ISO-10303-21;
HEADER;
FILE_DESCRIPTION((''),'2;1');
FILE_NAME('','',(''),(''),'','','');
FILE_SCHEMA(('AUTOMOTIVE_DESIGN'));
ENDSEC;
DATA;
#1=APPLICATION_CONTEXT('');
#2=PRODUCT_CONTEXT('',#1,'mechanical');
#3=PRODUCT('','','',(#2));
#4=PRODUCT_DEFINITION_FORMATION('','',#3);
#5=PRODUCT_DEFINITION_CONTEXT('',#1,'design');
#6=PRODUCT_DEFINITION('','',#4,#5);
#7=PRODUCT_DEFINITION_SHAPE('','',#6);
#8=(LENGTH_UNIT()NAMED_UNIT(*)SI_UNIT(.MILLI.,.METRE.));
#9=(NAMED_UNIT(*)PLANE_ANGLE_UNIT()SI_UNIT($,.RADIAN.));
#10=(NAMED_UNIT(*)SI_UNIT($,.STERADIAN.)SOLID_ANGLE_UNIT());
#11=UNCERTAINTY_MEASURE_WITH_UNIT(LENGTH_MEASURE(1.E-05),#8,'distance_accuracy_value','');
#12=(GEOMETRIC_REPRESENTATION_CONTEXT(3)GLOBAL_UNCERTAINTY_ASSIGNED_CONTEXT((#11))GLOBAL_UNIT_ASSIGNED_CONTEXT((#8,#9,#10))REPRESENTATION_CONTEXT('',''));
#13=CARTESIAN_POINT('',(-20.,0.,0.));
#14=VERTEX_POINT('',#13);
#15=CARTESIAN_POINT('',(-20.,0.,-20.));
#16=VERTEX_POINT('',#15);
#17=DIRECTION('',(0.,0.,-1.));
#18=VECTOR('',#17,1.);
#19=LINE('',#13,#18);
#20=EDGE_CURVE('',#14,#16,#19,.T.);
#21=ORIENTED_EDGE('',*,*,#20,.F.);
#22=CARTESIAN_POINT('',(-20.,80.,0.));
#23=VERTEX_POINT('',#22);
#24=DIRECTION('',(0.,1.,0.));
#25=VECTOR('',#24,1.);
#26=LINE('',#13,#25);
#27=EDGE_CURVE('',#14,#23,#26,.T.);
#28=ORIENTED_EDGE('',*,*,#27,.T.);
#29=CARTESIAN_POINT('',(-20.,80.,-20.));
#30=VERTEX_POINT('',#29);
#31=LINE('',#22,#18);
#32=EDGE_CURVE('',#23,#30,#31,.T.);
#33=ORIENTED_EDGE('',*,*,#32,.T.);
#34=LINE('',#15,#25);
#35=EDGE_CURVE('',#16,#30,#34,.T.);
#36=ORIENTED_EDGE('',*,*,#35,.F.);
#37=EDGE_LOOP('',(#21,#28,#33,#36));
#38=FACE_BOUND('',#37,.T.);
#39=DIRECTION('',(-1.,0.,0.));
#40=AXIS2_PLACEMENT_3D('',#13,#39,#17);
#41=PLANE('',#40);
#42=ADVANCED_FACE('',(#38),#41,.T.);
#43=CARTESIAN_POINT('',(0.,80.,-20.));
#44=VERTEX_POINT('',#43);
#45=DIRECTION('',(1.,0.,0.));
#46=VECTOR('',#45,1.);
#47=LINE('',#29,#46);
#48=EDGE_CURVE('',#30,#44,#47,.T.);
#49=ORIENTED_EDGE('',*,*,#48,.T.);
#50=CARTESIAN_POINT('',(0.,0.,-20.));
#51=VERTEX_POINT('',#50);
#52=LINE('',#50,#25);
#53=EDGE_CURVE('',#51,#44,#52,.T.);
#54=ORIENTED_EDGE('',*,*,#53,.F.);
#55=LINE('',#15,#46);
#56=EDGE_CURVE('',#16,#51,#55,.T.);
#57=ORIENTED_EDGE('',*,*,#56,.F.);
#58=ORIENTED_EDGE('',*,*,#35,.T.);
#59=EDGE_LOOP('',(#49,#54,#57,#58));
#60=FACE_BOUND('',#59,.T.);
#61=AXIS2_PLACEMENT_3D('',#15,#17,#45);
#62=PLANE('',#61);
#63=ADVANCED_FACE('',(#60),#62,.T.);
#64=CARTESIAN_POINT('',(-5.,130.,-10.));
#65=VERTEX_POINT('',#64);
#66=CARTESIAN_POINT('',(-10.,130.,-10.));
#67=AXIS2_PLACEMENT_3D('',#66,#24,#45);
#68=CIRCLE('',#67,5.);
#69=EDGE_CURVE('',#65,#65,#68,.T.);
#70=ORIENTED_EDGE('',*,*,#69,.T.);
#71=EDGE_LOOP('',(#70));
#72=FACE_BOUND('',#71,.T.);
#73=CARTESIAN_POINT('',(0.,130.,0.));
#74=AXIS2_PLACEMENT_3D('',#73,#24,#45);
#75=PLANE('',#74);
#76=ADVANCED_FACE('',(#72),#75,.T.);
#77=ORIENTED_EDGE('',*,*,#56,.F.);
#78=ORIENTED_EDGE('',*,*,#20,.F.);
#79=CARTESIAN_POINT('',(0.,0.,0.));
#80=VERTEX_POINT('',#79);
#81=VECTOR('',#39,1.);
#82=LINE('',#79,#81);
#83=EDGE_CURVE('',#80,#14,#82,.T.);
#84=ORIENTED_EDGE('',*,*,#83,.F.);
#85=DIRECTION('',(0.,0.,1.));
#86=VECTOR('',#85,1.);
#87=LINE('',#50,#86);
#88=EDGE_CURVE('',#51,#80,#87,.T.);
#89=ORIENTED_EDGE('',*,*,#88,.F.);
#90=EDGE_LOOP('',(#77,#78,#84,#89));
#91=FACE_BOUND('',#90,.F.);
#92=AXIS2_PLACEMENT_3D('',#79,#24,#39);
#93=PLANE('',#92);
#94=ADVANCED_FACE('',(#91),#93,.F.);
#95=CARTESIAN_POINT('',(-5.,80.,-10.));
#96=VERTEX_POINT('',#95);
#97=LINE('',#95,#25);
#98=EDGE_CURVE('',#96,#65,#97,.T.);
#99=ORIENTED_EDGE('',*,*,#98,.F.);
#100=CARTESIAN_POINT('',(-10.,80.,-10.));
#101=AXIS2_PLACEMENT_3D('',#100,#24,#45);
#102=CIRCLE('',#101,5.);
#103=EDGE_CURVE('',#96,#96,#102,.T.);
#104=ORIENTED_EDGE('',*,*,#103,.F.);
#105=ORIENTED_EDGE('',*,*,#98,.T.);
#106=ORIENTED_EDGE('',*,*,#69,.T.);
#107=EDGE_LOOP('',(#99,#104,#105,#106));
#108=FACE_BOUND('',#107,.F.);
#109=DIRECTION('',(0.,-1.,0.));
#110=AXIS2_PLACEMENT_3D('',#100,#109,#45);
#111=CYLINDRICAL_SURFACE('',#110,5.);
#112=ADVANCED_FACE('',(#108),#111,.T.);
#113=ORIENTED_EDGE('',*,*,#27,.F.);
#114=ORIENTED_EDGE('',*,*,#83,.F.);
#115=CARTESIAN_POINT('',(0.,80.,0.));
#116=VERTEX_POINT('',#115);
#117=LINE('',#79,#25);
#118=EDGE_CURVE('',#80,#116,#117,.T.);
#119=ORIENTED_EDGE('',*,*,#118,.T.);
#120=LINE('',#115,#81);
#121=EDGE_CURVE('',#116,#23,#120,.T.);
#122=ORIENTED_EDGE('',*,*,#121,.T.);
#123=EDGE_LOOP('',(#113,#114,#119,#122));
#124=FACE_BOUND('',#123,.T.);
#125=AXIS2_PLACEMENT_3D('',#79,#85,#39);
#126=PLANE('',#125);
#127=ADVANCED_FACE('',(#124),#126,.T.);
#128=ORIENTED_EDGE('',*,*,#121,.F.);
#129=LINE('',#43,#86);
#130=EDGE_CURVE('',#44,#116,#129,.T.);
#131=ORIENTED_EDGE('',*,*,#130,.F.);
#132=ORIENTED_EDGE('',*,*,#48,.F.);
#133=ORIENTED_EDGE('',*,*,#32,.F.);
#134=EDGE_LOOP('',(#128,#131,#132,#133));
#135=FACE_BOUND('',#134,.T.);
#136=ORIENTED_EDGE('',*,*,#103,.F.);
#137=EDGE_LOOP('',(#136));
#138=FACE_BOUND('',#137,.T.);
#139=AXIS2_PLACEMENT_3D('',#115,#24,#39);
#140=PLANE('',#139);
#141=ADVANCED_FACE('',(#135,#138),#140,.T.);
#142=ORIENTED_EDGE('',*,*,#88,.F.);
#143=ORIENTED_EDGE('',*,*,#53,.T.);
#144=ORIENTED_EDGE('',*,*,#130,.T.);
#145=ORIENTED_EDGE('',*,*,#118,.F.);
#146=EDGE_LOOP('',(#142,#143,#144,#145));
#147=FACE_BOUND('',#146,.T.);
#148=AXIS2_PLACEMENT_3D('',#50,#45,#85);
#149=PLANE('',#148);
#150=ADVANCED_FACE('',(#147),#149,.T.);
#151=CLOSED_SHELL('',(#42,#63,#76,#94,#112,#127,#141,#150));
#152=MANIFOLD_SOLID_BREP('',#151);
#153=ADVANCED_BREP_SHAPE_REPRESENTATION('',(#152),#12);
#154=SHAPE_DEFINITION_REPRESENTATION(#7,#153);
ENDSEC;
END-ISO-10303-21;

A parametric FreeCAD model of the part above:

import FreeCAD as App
import Part
import Sketcher
from FreeCAD import Vector


def add_polygon(sketch, points):
    """Adds a closed chain of lines whose ends are joined by coincident constraints."""
    first, n = sketch.GeometryCount, len(points)
    for a, b in zip(points, points[1:] + points[:1]):
        sketch.addGeometry(Part.LineSegment(App.Vector(*a, 0), App.Vector(*b, 0)), False)
    for i in range(n):
        sketch.addConstraint(Sketcher.Constraint("Coincident", first + i, 2, first + (i + 1) % n, 1))

doc = App.newDocument("Part")
params = doc.addObject("Spreadsheet::Sheet", "Params")
for row, (alias, value) in enumerate([
    ("sketch1_width", "20 mm"),
    ("pad1_length", "80 mm"),
    ("sketch2_diameter", "10 mm"),
    ("pad2_length", "50 mm"),
], start=1):
    params.set(f"A{row}", alias)
    params.set(f"B{row}", "=" + value)
    params.setAlias(f"B{row}", alias)

body = doc.addObject("PartDesign::Body", "Body")

# Sketch on XZ plane
sketch1 = body.newObject("Sketcher::SketchObject", "Sketch")
sketch1.AttachmentSupport = (doc.getObject("XZ_Plane"), [""])
sketch1.MapMode = "FlatFace"
add_polygon(sketch1, [(-20, 0), (0, 0), (0, -20), (-20, -20)])  # lines 0-3
sketch1.addConstraint([
    Sketcher.Constraint("Horizontal", 0),
    Sketcher.Constraint("Vertical", 1),
    Sketcher.Constraint("Horizontal", 2),
    Sketcher.Constraint("Vertical", 3),
    Sketcher.Constraint("Coincident", 0, 2, -1, 1),
    Sketcher.Constraint("Equal", 2, 1),
    Sketcher.Constraint("DistanceX", 0, 1, 0, 2, 20.0),
])
sketch1.setExpression("Constraints[10]", "Params.sketch1_width")
pad1 = body.newObject("PartDesign::Pad", "Pad")
pad1.Profile = sketch1
pad1.setExpression("Length", "Params.pad1_length")
pad1.Reversed = True

# Sketch on XZ plane
sketch2 = body.newObject("Sketcher::SketchObject", "Sketch001")
sketch2.AttachmentSupport = (doc.getObject("XZ_Plane"), [""])
sketch2.MapMode = "FlatFace"
sketch2.AttachmentOffset = App.Placement(Vector(0, 0, -80), App.Rotation())
sketch2.addGeometry(Part.Circle(Vector(-10, -10, 0), Vector(0, 0, 1), 5), False)
sketch2.addConstraint([
    Sketcher.Constraint("Diameter", 0, 10.0),
    Sketcher.Constraint("DistanceX", 0, 3, -1, 1, 10.0),
    Sketcher.Constraint("DistanceY", 0, 3, -1, 1, 10.0),
])
sketch2.setExpression("Constraints[0]", "Params.sketch2_diameter")
pad2 = body.newObject("PartDesign::Pad", "Pad001")
pad2.Profile = sketch2
pad2.setExpression("Length", "Params.pad2_length")
pad2.Reversed = True

doc.recompute()
